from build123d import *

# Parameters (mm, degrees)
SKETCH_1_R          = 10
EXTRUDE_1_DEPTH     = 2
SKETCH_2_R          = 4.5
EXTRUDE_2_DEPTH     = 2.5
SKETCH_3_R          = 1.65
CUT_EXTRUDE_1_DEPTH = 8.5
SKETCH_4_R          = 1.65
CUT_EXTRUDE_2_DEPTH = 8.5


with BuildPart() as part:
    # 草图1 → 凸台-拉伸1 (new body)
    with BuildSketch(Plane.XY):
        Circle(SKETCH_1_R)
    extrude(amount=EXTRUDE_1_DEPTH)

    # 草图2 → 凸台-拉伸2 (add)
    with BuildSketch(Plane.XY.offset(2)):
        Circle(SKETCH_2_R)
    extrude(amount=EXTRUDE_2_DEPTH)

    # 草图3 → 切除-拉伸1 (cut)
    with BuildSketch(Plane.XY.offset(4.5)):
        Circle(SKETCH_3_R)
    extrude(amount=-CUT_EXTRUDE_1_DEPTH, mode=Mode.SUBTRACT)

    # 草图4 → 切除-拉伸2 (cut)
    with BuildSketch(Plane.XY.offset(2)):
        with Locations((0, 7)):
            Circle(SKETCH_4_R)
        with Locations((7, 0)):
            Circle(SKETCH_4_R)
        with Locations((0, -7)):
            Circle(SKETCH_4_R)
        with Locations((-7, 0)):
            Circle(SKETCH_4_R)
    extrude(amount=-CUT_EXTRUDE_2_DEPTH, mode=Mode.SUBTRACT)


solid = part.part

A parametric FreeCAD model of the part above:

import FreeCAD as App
import Part
import Sketcher

V = App.Vector
Q = App.Units.Quantity

doc = App.newDocument("Part")
body = doc.addObject("PartDesign::Body", "Body")

# Sketch on XY plane
sketch1 = body.newObject("Sketcher::SketchObject", "Sketch")
sketch1.AttachmentSupport = (doc.getObject("XY_Plane"), [""])
sketch1.MapMode = "FlatFace"
sketch1.addGeometry(Part.Circle(V(0, 0, 0), V(0, 0, 1), 10), False)
sketch1.addConstraint([
    Sketcher.Constraint("Coincident", 0, 3, -1, 1),
    Sketcher.Constraint("Diameter", 0, Q("20 mm")),
])
pad1 = body.newObject("PartDesign::Pad", "Pad")
pad1.Profile = sketch1
pad1.Length = 2

# Sketch on XY plane
sketch2 = body.newObject("Sketcher::SketchObject", "Sketch001")
sketch2.AttachmentSupport = (doc.getObject("XY_Plane"), [""])
sketch2.MapMode = "FlatFace"
sketch2.AttachmentOffset = App.Placement(V(0, 0, 2), App.Rotation())
sketch2.addGeometry(Part.Circle(V(0, 0, 0), V(0, 0, 1), 4.5), False)
sketch2.addConstraint([
    Sketcher.Constraint("Coincident", 0, 3, -1, 1),
    Sketcher.Constraint("Diameter", 0, Q("9 mm")),
])
pad2 = body.newObject("PartDesign::Pad", "Pad001")
pad2.Profile = sketch2
pad2.Length = 2.5

# Sketch on XY plane
sketch3 = body.newObject("Sketcher::SketchObject", "Sketch002")
sketch3.AttachmentSupport = (doc.getObject("XY_Plane"), [""])
sketch3.MapMode = "FlatFace"
sketch3.AttachmentOffset = App.Placement(V(0, 0, 4.5), App.Rotation())
sketch3.addGeometry(Part.Circle(V(0, 0, 0), V(0, 0, 1), 1.65), False)
sketch3.addConstraint([
    Sketcher.Constraint("Coincident", 0, 3, -1, 1),
    Sketcher.Constraint("Diameter", 0, Q("3.3 mm")),
])
pocket1 = body.newObject("PartDesign::Pocket", "Pocket")
pocket1.Profile = sketch3
pocket1.Length = 8.5

# Sketch on XY plane
sketch4 = body.newObject("Sketcher::SketchObject", "Sketch003")
sketch4.AttachmentSupport = (doc.getObject("XY_Plane"), [""])
sketch4.MapMode = "FlatFace"
sketch4.AttachmentOffset = App.Placement(V(0, 0, 2), App.Rotation())
sketch4.addGeometry([
    Part.Circle(V(0, 7, 0), V(0, 0, 1), 1.65),
    Part.Circle(V(7, 0, 0), V(0, 0, 1), 1.65),
    Part.Circle(V(0, -7, 0), V(0, 0, 1), 1.65),
    Part.Circle(V(-7, 0, 0), V(0, 0, 1), 1.65),
], False)
sketch4.addConstraint([
    Sketcher.Constraint("Equal", 0, 1),
    Sketcher.Constraint("Equal", 1, 2),
    Sketcher.Constraint("Equal", 2, 3),
    Sketcher.Constraint("Symmetric", 0, 3, 2, 3, -1, 1),
    Sketcher.Constraint("Symmetric", 1, 3, 3, 3, -1, 1),
    Sketcher.Constraint("PointOnObject", 0, 3, -2),
    Sketcher.Constraint("PointOnObject", 1, 3, -1),
    Sketcher.Constraint("Diameter", 0, Q("3.3 mm")),
    Sketcher.Constraint("DistanceY", -1, 1, 0, 3, Q("7 mm")),
    Sketcher.Constraint("DistanceX", -1, 1, 1, 3, Q("7 mm")),
])
pocket2 = body.newObject("PartDesign::Pocket", "Pocket001")
pocket2.Profile = sketch4
pocket2.Length = 8.5

doc.recompute()
